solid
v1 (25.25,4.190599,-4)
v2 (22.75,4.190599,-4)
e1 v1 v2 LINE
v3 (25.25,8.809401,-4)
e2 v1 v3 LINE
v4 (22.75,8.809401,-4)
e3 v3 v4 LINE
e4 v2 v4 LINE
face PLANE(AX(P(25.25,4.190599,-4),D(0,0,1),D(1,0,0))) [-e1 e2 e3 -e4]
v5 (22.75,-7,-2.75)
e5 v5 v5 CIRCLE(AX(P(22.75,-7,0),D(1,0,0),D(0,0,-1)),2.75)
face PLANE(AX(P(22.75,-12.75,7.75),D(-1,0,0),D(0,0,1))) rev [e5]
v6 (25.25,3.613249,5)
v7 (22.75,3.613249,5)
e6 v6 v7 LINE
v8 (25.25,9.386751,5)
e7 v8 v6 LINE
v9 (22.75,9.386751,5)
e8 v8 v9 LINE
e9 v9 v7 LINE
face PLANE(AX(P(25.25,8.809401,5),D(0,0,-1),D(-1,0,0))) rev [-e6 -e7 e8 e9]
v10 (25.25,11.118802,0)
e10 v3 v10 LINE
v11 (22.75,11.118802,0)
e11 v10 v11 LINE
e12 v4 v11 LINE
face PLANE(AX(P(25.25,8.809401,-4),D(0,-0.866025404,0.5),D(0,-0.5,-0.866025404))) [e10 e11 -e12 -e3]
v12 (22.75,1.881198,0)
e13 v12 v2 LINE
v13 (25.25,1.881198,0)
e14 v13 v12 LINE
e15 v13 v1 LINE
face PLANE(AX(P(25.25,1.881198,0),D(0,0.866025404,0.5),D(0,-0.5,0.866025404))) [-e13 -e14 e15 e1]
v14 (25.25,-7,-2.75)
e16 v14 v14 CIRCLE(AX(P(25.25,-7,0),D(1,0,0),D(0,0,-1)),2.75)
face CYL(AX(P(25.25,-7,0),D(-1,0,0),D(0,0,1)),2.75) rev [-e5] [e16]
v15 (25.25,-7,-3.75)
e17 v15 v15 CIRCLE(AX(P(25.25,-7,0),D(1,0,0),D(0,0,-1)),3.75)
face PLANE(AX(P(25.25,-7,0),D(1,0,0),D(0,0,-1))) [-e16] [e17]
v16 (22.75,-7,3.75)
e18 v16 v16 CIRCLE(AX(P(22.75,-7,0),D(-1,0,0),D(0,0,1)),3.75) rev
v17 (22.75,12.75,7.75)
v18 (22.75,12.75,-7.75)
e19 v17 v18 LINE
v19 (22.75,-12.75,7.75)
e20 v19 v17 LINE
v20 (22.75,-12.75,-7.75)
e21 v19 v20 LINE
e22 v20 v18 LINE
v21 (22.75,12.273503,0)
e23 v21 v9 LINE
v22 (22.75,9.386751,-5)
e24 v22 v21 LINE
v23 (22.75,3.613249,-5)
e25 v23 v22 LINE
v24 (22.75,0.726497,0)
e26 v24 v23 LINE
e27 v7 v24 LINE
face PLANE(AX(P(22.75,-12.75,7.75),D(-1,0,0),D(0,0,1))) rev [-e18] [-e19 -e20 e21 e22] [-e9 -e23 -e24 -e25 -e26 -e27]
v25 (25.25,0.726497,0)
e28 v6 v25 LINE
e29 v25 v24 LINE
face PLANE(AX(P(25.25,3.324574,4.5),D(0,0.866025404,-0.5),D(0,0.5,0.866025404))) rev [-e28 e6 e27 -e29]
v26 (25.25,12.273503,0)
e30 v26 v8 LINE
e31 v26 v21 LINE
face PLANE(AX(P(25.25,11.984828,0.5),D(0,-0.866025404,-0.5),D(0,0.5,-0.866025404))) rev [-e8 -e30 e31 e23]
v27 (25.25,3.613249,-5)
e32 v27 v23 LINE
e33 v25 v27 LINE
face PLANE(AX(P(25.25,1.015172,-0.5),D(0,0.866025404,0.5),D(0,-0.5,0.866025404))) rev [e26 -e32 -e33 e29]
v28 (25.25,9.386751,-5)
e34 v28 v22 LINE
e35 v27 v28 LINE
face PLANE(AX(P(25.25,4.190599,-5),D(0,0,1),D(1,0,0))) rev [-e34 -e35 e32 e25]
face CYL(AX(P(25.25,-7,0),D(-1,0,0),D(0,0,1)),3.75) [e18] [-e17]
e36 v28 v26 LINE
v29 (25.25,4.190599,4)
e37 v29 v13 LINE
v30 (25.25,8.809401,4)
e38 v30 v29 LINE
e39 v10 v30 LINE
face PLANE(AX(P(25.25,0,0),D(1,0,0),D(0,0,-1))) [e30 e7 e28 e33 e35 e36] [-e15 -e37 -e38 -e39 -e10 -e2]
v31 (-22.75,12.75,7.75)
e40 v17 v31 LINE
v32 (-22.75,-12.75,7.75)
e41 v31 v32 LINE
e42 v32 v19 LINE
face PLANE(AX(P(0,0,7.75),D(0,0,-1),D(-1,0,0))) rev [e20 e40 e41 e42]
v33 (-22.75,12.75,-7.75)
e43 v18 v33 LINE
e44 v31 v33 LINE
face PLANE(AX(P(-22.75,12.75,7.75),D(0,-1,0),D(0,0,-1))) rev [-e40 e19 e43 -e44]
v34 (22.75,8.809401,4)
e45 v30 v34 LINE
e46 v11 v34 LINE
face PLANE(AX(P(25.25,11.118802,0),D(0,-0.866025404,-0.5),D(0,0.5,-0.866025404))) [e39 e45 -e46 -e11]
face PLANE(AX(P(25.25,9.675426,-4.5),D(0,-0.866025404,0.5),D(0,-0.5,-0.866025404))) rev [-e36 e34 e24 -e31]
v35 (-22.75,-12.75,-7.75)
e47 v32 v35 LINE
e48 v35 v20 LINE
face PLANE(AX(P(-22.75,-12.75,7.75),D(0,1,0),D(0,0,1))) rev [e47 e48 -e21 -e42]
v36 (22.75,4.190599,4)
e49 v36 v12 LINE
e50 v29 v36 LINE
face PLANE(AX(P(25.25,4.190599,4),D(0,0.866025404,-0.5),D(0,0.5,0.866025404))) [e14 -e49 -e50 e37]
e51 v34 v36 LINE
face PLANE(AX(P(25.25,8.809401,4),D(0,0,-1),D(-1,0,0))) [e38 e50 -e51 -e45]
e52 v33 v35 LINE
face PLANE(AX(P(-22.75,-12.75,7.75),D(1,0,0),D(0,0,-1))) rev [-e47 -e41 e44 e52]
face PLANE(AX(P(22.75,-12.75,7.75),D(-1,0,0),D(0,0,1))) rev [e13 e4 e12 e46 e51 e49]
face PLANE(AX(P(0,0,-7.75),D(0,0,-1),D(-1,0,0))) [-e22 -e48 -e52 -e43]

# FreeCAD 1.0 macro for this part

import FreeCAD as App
import Part
import Sketcher
from FreeCAD import Vector
Q = App.Units.Quantity

doc = App.newDocument("Part")
body = doc.addObject("PartDesign::Body", "Body")

sketch1 = doc.addObject("Sketcher::SketchObject", "Sketch")
body.addObject(sketch1)
sketch1.AttachmentSupport = (doc.XY_Plane, [""])
sketch1.MapMode = "FlatFace"
sketch1.addGeometry(Part.LineSegment(Vector(-23, 13, 0), Vector(-23, -13, 0)), False)
sketch1.addGeometry(Part.LineSegment(Vector(-23, -13, 0), Vector(23, -13, 0)), False)
sketch1.addGeometry(Part.LineSegment(Vector(23, -13, 0), Vector(23, 13, 0)), False)
sketch1.addGeometry(Part.LineSegment(Vector(23, 13, 0), Vector(-23, 13, 0)), False)
sketch1.addConstraint(Sketcher.Constraint("Coincident", 0, 2, 1, 1))
sketch1.addConstraint(Sketcher.Constraint("Coincident", 1, 2, 2, 1))
sketch1.addConstraint(Sketcher.Constraint("Coincident", 2, 2, 3, 1))
sketch1.addConstraint(Sketcher.Constraint("Coincident", 3, 2, 0, 1))
sketch1.addConstraint(Sketcher.Constraint("Vertical", 0))
sketch1.addConstraint(Sketcher.Constraint("Horizontal", 1))
sketch1.addConstraint(Sketcher.Constraint("Vertical", 2))
sketch1.addConstraint(Sketcher.Constraint("Horizontal", 3))
sketch1.addConstraint(Sketcher.Constraint("Symmetric", 0, 2, 2, 2, -1, 1))
sketch1.addConstraint(Sketcher.Constraint("DistanceX", 1, 1, 1, 2, Q("45.5 mm")))
sketch1.addConstraint(Sketcher.Constraint("DistanceY", 0, 2, 0, 1, Q("25.5 mm")))
pad1 = doc.addObject("PartDesign::Pad", "Pad")
body.addObject(pad1)
pad1.Profile = sketch1
pad1.Length = 15.5
pad1.Midplane = True

sketch2 = doc.addObject("Sketcher::SketchObject", "Sketch001")
body.addObject(sketch2)
sketch2.AttachmentSupport = (doc.YZ_Plane, [""])
sketch2.MapMode = "FlatFace"
sketch2.AttachmentOffset = App.Placement(Vector(0, 0, 22.75), App.Rotation())
sketch2.addGeometry(Part.Circle(Vector(-7, 0, 0), Vector(0, 0, 1), 3.8), False)
sketch2.addGeometry(Part.Circle(Vector(-7, 0, 0), Vector(0, 0, 1), 2.8), False)
sketch2.addGeometry(Part.LineSegment(Vector(12.3, 0, 0), Vector(9.4, 5, 0)), False)
sketch2.addGeometry(Part.LineSegment(Vector(9.4, 5, 0), Vector(3.6, 5, 0)), False)
sketch2.addGeometry(Part.LineSegment(Vector(3.6, 5, 0), Vector(0.7, 0, 0)), False)
sketch2.addGeometry(Part.LineSegment(Vector(0.7, 0, 0), Vector(3.6, -5, 0)), False)
sketch2.addGeometry(Part.LineSegment(Vector(3.6, -5, 0), Vector(9.4, -5, 0)), False)
sketch2.addGeometry(Part.LineSegment(Vector(9.4, -5, 0), Vector(12.3, 0, 0)), False)
sketch2.addGeometry(Part.LineSegment(Vector(8.8, 4, 0), Vector(11.1, 0, 0)), False)
sketch2.addGeometry(Part.LineSegment(Vector(11.1, 0, 0), Vector(8.8, -4, 0)), False)
sketch2.addGeometry(Part.LineSegment(Vector(8.8, -4, 0), Vector(4.2, -4, 0)), False)
sketch2.addGeometry(Part.LineSegment(Vector(4.2, -4, 0), Vector(1.9, 0, 0)), False)
sketch2.addGeometry(Part.LineSegment(Vector(1.9, 0, 0), Vector(4.2, 4, 0)), False)
sketch2.addGeometry(Part.LineSegment(Vector(4.2, 4, 0), Vector(8.8, 4, 0)), False)
sketch2.addConstraint(Sketcher.Constraint("Coincident", 2, 2, 3, 1))
sketch2.addConstraint(Sketcher.Constraint("Coincident", 3, 2, 4, 1))
sketch2.addConstraint(Sketcher.Constraint("Coincident", 4, 2, 5, 1))
sketch2.addConstraint(Sketcher.Constraint("Coincident", 5, 2, 6, 1))
sketch2.addConstraint(Sketcher.Constraint("Coincident", 6, 2, 7, 1))
sketch2.addConstraint(Sketcher.Constraint("Coincident", 7, 2, 2, 1))
sketch2.addConstraint(Sketcher.Constraint("Coincident", 8, 2, 9, 1))
sketch2.addConstraint(Sketcher.Constraint("Coincident", 9, 2, 10, 1))
sketch2.addConstraint(Sketcher.Constraint("Coincident", 10, 2, 11, 1))
sketch2.addConstraint(Sketcher.Constraint("Coincident", 11, 2, 12, 1))
sketch2.addConstraint(Sketcher.Constraint("Coincident", 12, 2, 13, 1))
sketch2.addConstraint(Sketcher.Constraint("Coincident", 13, 2, 8, 1))
sketch2.addConstraint(Sketcher.Constraint("Horizontal", 3))
sketch2.addConstraint(Sketcher.Constraint("Horizontal", 6))
sketch2.addConstraint(Sketcher.Constraint("Horizontal", 10))
sketch2.addConstraint(Sketcher.Constraint("Horizontal", 13))
sketch2.addConstraint(Sketcher.Constraint("Coincident", 1, 3, 0, 3))
sketch2.addConstraint(Sketcher.Constraint("Symmetric", 3, 2, 5, 2, -1))
sketch2.addConstraint(Sketcher.Constraint("Symmetric", 10, 2, 12, 2, -1))
sketch2.addConstraint(Sketcher.Constraint("PointOnObject", 0, 3, -1))
sketch2.addConstraint(Sketcher.Constraint("PointOnObject", 4, 2, -1))
sketch2.addConstraint(Sketcher.Constraint("PointOnObject", 7, 2, -1))
sketch2.addConstraint(Sketcher.Constraint("PointOnObject", 8, 2, -1))
sketch2.addConstraint(Sketcher.Constraint("PointOnObject", 11, 2, -1))
sketch2.addConstraint(Sketcher.Constraint("Parallel", 2, 5))
sketch2.addConstraint(Sketcher.Constraint("Parallel", 4, 7))
sketch2.addConstraint(Sketcher.Constraint("Parallel", 5, 8))
sketch2.addConstraint(Sketcher.Constraint("Parallel", 7, 9))
sketch2.addConstraint(Sketcher.Constraint("Parallel", 8, 11))
sketch2.addConstraint(Sketcher.Constraint("Diameter", 0, Q("7.5 mm")))
sketch2.addConstraint(Sketcher.Constraint("Diameter", 1, Q("5.5 mm")))
sketch2.addConstraint(Sketcher.Constraint("Angle", 2, Q("120 deg")))
sketch2.addConstraint(Sketcher.Constraint("DistanceX", 0, 3, -1, 1, Q("7 mm")))
sketch2.addConstraint(Sketcher.Constraint("DistanceY", -1, 1, 2, 2, Q("5 mm")))
sketch2.addConstraint(Sketcher.Constraint("DistanceY", 9, 2, -1, 1, Q("4 mm")))
sketch2.addConstraint(Sketcher.Constraint("DistanceX", -1, 1, 9, 2, Q("8.809401 mm")))
sketch2.addConstraint(Sketcher.Constraint("DistanceX", -1, 1, 10, 2, Q("4.190599 mm")))
sketch2.addConstraint(Sketcher.Constraint("DistanceX", 8, 2, 7, 2, Q("1.154701 mm")))
sketch2.addConstraint(Sketcher.Constraint("DistanceX", 4, 2, 10, 2, Q("3.464102 mm")))
pad2 = doc.addObject("PartDesign::Pad", "Pad001")
body.addObject(pad2)
pad2.Profile = sketch2
pad2.Length = 2.5

doc.recompute()
